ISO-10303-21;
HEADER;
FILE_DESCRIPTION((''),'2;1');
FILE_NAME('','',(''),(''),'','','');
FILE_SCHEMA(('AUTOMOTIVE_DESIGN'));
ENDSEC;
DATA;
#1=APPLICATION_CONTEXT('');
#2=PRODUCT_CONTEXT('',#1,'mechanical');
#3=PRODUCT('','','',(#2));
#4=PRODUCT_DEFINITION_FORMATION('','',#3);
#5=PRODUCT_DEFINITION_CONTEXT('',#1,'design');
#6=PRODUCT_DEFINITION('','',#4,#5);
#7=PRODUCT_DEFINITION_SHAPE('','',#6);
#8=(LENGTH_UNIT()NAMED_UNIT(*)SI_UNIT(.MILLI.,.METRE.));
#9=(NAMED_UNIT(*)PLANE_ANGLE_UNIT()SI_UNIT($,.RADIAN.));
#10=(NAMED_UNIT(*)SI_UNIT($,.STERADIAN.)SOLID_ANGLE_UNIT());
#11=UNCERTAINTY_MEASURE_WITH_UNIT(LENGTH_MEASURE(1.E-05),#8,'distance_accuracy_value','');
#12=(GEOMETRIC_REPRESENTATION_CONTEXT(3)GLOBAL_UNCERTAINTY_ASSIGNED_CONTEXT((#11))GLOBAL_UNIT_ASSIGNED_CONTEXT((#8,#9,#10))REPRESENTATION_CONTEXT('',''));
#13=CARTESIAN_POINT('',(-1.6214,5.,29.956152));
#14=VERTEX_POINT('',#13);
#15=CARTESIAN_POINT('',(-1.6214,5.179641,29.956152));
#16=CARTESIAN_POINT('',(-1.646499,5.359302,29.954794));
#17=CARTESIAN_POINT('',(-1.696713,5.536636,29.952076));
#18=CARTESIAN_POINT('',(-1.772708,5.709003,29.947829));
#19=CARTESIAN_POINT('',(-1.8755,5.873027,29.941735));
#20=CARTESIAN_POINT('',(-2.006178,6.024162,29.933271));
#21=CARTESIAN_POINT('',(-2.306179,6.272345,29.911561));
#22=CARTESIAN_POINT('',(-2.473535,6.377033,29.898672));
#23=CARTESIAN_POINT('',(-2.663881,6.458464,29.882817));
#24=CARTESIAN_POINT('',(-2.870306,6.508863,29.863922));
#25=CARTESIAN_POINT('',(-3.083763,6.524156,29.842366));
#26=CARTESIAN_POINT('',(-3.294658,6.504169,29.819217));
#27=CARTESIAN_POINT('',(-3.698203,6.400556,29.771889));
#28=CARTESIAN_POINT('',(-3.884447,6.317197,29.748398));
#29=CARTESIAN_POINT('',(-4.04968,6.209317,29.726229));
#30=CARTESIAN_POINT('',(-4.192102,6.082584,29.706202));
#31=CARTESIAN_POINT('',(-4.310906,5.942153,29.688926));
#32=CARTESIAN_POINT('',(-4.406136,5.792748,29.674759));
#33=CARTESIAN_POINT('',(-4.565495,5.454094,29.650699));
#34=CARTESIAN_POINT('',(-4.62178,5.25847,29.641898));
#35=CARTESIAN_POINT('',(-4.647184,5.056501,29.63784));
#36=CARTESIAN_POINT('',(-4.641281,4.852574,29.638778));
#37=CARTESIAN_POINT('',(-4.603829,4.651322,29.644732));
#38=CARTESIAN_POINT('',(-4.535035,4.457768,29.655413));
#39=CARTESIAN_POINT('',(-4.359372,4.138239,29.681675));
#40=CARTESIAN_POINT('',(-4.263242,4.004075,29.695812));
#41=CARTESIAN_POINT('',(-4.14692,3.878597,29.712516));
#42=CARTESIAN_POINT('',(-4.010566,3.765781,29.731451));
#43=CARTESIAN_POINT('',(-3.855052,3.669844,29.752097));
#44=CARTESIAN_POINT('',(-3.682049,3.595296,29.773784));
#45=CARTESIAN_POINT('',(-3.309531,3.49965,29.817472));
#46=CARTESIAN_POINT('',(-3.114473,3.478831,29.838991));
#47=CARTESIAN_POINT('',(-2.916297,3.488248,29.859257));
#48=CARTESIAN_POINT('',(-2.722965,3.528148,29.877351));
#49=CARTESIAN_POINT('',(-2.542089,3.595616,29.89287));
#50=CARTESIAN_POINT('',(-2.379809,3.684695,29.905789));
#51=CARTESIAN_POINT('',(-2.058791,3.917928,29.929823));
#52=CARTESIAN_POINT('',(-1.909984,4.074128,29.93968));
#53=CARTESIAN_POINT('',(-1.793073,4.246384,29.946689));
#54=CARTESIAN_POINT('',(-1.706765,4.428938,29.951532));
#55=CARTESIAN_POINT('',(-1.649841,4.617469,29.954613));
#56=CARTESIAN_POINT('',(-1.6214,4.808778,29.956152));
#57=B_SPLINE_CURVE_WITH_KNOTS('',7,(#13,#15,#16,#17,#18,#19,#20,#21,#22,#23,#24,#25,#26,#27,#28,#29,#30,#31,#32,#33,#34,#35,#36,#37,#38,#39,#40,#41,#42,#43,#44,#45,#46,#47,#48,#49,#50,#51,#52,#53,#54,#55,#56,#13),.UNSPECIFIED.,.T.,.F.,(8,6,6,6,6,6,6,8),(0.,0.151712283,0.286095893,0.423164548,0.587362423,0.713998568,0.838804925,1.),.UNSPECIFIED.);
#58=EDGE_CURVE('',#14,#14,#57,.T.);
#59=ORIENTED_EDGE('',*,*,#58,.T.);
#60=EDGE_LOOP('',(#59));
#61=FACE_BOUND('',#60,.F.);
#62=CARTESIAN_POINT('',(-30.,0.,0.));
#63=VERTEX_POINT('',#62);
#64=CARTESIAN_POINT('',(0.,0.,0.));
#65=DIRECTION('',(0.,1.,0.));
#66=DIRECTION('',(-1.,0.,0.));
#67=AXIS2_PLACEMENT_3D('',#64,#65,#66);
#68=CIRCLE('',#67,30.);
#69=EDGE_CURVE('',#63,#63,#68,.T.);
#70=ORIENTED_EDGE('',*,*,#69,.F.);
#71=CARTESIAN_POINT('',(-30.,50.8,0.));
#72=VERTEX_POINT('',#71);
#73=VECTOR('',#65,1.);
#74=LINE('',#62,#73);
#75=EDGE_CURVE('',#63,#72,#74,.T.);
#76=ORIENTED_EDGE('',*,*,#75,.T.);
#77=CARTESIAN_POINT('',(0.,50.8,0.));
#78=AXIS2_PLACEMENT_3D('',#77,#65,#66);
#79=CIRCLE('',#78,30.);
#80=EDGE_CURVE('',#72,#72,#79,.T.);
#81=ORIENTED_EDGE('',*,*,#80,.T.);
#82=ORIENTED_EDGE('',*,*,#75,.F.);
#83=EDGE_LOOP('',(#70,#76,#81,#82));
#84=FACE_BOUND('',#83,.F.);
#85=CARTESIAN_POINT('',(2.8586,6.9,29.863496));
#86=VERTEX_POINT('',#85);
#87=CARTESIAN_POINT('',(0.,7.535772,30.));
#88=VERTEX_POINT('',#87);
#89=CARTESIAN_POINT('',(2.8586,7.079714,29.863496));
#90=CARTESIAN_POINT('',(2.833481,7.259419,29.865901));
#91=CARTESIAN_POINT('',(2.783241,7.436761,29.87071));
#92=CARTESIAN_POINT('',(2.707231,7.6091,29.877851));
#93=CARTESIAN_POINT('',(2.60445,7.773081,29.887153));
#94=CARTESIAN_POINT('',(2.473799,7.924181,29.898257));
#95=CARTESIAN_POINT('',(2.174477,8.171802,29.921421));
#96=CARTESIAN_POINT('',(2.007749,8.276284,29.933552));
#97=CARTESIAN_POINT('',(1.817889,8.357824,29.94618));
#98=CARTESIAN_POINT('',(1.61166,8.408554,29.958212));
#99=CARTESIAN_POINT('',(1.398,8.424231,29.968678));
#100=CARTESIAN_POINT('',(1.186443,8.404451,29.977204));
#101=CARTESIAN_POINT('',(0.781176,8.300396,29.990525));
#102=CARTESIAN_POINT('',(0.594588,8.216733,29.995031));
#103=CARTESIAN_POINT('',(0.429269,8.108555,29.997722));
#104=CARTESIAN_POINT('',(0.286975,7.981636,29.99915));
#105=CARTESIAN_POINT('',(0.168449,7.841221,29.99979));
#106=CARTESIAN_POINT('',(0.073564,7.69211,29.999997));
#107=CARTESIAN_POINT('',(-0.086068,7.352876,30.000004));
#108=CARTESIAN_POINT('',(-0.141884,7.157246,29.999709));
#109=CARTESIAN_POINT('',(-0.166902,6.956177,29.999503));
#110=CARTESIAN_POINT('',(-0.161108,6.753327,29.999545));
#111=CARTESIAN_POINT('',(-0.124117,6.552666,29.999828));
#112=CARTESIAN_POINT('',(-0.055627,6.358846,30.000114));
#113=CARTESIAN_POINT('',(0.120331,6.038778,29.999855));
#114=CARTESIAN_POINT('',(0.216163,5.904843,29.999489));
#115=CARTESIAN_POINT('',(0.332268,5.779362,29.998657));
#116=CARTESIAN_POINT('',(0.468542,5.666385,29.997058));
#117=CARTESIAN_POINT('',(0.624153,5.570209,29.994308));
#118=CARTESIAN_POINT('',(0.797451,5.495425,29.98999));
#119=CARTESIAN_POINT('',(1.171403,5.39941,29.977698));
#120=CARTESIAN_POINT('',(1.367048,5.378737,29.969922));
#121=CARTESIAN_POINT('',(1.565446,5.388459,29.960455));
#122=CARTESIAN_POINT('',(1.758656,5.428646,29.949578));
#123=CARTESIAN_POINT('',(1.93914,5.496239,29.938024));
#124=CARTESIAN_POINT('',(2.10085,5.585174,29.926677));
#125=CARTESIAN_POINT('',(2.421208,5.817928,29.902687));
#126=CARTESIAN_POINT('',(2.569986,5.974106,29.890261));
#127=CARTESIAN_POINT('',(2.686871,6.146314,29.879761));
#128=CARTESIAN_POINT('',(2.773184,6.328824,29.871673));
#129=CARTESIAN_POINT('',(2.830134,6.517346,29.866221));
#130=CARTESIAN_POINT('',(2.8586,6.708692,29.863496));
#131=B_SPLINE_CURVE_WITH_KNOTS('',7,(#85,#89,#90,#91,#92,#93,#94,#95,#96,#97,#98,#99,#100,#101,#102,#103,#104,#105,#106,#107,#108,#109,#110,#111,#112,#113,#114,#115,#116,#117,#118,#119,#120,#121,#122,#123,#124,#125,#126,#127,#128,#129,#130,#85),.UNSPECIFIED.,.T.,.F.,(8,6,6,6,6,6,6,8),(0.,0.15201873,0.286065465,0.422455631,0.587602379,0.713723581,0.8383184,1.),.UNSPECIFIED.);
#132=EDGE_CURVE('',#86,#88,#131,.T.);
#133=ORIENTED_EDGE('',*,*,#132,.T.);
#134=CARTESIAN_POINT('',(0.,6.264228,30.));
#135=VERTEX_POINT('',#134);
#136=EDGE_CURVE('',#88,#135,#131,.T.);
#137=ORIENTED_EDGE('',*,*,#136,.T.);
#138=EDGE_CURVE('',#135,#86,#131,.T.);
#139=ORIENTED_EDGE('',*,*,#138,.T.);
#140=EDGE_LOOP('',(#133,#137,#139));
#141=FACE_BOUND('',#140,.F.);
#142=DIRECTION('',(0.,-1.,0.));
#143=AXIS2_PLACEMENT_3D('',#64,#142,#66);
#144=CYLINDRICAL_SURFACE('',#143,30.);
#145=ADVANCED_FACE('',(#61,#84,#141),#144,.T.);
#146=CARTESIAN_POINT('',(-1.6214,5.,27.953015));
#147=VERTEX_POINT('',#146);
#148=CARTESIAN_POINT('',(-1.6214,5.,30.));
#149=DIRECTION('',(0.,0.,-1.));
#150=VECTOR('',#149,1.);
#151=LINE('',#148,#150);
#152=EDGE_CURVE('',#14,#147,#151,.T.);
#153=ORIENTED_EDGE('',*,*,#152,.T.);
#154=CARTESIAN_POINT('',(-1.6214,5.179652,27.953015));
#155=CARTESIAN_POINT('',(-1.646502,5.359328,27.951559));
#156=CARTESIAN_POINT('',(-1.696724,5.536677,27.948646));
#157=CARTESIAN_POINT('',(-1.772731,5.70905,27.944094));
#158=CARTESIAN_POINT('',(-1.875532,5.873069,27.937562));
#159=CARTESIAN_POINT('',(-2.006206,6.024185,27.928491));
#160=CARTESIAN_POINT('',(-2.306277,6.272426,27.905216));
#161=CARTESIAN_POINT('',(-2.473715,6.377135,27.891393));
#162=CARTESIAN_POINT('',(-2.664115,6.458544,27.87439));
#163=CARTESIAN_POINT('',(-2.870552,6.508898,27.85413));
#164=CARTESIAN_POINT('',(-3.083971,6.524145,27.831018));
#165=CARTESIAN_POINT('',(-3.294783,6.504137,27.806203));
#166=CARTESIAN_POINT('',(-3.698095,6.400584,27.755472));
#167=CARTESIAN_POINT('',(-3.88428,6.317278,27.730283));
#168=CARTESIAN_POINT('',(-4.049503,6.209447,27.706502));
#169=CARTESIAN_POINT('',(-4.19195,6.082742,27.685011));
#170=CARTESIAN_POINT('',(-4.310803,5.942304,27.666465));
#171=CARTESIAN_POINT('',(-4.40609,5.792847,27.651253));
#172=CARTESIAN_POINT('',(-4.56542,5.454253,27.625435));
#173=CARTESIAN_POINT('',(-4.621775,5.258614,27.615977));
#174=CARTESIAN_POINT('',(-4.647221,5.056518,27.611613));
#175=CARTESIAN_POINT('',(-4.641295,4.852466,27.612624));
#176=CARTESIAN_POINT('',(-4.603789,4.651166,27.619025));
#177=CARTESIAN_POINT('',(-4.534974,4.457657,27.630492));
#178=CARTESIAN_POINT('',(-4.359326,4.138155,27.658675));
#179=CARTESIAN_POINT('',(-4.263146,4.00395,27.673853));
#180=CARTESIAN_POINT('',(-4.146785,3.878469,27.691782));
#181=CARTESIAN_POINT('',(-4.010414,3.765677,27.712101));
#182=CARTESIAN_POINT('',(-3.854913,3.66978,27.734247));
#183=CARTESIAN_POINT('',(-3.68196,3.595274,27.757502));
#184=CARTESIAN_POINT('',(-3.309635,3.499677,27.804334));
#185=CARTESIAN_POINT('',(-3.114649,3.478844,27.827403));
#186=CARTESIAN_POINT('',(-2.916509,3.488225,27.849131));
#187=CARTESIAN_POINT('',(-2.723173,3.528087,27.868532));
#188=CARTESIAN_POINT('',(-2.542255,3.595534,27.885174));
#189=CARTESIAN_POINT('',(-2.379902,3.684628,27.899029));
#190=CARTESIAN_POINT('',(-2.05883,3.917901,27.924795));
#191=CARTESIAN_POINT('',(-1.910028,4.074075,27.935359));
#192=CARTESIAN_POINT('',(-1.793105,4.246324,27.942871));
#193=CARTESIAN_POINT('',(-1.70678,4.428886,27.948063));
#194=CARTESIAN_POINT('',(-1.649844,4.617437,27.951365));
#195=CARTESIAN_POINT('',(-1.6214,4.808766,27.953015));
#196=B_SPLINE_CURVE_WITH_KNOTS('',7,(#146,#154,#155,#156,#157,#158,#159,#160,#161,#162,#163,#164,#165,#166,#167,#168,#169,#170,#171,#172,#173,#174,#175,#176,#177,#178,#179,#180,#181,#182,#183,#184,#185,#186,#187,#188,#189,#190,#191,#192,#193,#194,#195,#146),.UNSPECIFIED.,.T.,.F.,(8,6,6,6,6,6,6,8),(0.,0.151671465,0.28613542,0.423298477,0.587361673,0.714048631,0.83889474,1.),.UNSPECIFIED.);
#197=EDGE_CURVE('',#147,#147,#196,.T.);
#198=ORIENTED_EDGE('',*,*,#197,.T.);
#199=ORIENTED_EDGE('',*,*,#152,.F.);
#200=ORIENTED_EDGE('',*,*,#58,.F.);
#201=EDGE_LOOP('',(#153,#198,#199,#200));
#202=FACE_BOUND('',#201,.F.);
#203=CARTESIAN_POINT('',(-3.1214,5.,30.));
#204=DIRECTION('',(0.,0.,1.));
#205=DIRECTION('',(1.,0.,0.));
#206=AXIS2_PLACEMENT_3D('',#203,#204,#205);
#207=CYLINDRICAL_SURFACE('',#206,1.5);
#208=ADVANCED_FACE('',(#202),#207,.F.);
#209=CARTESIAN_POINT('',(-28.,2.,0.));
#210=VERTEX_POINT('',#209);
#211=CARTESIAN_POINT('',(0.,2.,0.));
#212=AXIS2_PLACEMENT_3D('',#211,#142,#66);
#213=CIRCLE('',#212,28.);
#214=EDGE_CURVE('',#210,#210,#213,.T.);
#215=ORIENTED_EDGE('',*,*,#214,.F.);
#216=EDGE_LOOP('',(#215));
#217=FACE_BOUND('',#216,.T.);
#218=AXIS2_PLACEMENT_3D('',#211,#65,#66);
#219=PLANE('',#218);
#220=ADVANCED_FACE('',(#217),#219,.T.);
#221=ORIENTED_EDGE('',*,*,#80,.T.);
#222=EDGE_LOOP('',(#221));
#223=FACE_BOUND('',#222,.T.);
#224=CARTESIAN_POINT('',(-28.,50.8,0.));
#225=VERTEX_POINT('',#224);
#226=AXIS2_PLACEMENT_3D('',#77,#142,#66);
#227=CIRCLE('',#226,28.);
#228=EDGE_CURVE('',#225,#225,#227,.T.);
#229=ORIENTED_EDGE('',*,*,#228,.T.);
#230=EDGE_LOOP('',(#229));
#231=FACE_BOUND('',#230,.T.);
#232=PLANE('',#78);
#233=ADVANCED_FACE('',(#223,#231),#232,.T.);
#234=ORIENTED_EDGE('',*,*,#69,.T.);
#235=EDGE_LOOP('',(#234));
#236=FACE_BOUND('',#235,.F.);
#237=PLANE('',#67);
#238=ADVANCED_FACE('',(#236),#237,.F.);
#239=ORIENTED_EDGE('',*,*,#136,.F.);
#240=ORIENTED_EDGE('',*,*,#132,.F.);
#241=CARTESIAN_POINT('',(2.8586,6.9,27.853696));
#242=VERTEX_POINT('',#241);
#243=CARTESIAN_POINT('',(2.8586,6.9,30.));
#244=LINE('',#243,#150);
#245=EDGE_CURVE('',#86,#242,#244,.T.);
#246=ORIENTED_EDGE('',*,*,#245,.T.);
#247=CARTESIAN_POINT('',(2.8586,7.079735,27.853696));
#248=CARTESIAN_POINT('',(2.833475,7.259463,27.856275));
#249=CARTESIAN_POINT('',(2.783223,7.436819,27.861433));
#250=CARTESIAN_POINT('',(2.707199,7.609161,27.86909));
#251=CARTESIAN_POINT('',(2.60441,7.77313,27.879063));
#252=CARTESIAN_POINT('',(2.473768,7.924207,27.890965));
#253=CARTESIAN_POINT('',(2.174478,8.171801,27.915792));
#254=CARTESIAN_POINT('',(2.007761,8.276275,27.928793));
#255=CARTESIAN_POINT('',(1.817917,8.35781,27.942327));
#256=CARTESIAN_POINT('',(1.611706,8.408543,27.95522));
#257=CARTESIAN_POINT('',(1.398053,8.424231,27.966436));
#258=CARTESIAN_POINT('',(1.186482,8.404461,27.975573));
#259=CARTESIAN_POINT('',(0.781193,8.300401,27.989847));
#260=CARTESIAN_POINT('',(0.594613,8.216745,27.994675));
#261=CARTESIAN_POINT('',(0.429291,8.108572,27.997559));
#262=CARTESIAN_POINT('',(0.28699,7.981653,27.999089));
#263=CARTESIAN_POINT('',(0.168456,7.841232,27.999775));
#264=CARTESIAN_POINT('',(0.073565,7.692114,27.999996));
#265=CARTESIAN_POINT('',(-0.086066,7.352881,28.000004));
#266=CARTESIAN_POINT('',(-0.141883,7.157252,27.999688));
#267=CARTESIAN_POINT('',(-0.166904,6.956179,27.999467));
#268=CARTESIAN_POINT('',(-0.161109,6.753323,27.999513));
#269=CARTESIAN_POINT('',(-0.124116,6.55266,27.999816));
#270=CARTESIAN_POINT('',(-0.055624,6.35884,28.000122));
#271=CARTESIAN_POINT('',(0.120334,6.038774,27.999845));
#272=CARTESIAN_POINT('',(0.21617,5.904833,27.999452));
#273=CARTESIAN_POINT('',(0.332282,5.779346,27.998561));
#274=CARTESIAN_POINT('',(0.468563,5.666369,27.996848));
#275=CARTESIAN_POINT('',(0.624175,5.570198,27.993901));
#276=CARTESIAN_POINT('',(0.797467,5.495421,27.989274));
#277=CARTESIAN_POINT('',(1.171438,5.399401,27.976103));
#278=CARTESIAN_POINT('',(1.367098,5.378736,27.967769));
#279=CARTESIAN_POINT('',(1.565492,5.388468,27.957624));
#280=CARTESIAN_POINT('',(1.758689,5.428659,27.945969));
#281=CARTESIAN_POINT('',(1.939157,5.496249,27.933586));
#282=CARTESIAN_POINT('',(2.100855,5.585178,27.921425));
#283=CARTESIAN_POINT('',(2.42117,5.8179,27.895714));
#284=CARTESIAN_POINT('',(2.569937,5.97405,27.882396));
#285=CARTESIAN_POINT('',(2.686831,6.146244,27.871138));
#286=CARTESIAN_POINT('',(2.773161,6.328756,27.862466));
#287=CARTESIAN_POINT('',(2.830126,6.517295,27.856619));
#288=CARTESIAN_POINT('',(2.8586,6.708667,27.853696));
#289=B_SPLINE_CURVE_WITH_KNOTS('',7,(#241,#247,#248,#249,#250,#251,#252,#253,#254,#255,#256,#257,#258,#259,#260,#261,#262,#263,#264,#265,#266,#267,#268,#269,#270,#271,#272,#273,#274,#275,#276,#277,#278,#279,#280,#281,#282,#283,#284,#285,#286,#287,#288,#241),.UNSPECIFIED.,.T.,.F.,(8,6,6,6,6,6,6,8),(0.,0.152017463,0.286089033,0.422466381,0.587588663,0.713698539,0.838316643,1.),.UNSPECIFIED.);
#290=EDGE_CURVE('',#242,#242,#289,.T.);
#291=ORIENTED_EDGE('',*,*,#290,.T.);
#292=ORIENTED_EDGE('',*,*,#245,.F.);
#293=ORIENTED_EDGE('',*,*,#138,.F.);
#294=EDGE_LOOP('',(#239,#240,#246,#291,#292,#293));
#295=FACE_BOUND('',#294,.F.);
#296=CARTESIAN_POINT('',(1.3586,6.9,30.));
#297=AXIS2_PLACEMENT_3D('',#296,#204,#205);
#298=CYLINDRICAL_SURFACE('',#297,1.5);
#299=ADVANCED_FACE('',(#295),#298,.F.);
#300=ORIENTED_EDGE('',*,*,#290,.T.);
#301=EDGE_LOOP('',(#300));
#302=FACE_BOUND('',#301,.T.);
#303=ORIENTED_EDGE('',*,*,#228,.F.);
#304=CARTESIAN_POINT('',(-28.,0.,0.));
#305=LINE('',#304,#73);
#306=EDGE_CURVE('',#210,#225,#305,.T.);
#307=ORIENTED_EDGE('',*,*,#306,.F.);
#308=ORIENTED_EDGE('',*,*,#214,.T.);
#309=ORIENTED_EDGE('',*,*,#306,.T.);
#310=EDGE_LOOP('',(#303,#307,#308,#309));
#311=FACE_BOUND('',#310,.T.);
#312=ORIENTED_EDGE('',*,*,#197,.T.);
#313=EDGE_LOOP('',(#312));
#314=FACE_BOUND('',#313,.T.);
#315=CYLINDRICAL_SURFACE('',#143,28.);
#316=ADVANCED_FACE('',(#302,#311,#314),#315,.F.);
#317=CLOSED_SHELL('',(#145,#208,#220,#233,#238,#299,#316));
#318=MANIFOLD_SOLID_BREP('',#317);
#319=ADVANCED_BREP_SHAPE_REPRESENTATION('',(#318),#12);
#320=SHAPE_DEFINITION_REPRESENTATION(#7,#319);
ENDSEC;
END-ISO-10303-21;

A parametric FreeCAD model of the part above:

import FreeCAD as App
import Part
import Sketcher
from FreeCAD import Vector
Q = App.Units.Quantity


def faces_at(feature, points):
    """Names of the faces that lie closest to the given points."""
    faces = feature.Shape.Faces
    near = lambda p: min(range(len(faces)), key=lambda i: faces[i].distToShape(Part.Vertex(*p))[0])
    return sorted({f"Face{near(p) + 1}" for p in points})

doc = App.newDocument("Part")
params = doc.addObject("Spreadsheet::Sheet", "Params")
for row, (alias, value) in enumerate([
    ("sketch1_diameter", "60 mm"),
    ("pad1_length", "50.8 mm"),
    ("thickness_wall", "2 mm"),
    ("sketch2_diameter", "3 mm"),
    ("pocket1_length", "4 mm"),
], start=1):
    params.set(f"A{row}", alias)
    params.set(f"B{row}", "=" + value)
    params.setAlias(f"B{row}", alias)

body = doc.addObject("PartDesign::Body", "Body")

# Sketch on XZ plane
sketch1 = doc.addObject("Sketcher::SketchObject", "Sketch")
body.addObject(sketch1)
sketch1.AttachmentSupport = (doc.XZ_Plane, [""])
sketch1.MapMode = "FlatFace"
sketch1.addGeometry(Part.Circle(Vector(0, 0, 0), Vector(0, 0, 1), 30), False)
sketch1.addConstraint(Sketcher.Constraint("Coincident", 0, 3, -1, 1))
sketch1.addConstraint(Sketcher.Constraint("Diameter", 0, Q("60 mm")))
sketch1.setExpression("Constraints[1]", "Params.sketch1_diameter")
pad1 = doc.addObject("PartDesign::Pad", "Pad")
body.addObject(pad1)
pad1.Profile = sketch1
pad1.setExpression("Length", "Params.pad1_length")
pad1.Reversed = True
doc.recompute()

thickness = doc.addObject("PartDesign::Thickness", "Thickness")
body.addObject(thickness)
thickness.Base = (pad1, faces_at(pad1, [(-9.419, 50.8, 0)]))
thickness.setExpression("Value", "Params.thickness_wall")
thickness.Reversed = True
thickness.Join = "Intersection"

# Sketch on XY plane
sketch2 = doc.addObject("Sketcher::SketchObject", "Sketch001")
body.addObject(sketch2)
sketch2.AttachmentSupport = (doc.XY_Plane, [""])
sketch2.MapMode = "FlatFace"
sketch2.AttachmentOffset = App.Placement(Vector(0, 0, 30), App.Rotation())
sketch2.addGeometry(Part.Circle(Vector(-3.1214, 5, 0), Vector(0, 0, 1), 1.5), False)
sketch2.addGeometry(Part.Circle(Vector(1.3586, 6.9, 0), Vector(0, 0, 1), 1.5), False)
sketch2.addConstraint(Sketcher.Constraint("Equal", 0, 1))
sketch2.addConstraint(Sketcher.Constraint("Diameter", 0, Q("3 mm")))
sketch2.addConstraint(Sketcher.Constraint("DistanceY", 0, 3, 1, 3, Q("1.9 mm")))
sketch2.addConstraint(Sketcher.Constraint("DistanceX", 0, 3, 1, 3, Q("4.48 mm")))
sketch2.addConstraint(Sketcher.Constraint("DistanceY", -1, 1, 0, 3, Q("5 mm")))
sketch2.addConstraint(Sketcher.Constraint("DistanceX", 0, 3, -1, 1, Q("3.1214 mm")))
sketch2.setExpression("Constraints[1]", "Params.sketch2_diameter")
pocket1 = doc.addObject("PartDesign::Pocket", "Pocket")
body.addObject(pocket1)
pocket1.Profile = sketch2
pocket1.setExpression("Length", "Params.pocket1_length")

doc.recompute()
